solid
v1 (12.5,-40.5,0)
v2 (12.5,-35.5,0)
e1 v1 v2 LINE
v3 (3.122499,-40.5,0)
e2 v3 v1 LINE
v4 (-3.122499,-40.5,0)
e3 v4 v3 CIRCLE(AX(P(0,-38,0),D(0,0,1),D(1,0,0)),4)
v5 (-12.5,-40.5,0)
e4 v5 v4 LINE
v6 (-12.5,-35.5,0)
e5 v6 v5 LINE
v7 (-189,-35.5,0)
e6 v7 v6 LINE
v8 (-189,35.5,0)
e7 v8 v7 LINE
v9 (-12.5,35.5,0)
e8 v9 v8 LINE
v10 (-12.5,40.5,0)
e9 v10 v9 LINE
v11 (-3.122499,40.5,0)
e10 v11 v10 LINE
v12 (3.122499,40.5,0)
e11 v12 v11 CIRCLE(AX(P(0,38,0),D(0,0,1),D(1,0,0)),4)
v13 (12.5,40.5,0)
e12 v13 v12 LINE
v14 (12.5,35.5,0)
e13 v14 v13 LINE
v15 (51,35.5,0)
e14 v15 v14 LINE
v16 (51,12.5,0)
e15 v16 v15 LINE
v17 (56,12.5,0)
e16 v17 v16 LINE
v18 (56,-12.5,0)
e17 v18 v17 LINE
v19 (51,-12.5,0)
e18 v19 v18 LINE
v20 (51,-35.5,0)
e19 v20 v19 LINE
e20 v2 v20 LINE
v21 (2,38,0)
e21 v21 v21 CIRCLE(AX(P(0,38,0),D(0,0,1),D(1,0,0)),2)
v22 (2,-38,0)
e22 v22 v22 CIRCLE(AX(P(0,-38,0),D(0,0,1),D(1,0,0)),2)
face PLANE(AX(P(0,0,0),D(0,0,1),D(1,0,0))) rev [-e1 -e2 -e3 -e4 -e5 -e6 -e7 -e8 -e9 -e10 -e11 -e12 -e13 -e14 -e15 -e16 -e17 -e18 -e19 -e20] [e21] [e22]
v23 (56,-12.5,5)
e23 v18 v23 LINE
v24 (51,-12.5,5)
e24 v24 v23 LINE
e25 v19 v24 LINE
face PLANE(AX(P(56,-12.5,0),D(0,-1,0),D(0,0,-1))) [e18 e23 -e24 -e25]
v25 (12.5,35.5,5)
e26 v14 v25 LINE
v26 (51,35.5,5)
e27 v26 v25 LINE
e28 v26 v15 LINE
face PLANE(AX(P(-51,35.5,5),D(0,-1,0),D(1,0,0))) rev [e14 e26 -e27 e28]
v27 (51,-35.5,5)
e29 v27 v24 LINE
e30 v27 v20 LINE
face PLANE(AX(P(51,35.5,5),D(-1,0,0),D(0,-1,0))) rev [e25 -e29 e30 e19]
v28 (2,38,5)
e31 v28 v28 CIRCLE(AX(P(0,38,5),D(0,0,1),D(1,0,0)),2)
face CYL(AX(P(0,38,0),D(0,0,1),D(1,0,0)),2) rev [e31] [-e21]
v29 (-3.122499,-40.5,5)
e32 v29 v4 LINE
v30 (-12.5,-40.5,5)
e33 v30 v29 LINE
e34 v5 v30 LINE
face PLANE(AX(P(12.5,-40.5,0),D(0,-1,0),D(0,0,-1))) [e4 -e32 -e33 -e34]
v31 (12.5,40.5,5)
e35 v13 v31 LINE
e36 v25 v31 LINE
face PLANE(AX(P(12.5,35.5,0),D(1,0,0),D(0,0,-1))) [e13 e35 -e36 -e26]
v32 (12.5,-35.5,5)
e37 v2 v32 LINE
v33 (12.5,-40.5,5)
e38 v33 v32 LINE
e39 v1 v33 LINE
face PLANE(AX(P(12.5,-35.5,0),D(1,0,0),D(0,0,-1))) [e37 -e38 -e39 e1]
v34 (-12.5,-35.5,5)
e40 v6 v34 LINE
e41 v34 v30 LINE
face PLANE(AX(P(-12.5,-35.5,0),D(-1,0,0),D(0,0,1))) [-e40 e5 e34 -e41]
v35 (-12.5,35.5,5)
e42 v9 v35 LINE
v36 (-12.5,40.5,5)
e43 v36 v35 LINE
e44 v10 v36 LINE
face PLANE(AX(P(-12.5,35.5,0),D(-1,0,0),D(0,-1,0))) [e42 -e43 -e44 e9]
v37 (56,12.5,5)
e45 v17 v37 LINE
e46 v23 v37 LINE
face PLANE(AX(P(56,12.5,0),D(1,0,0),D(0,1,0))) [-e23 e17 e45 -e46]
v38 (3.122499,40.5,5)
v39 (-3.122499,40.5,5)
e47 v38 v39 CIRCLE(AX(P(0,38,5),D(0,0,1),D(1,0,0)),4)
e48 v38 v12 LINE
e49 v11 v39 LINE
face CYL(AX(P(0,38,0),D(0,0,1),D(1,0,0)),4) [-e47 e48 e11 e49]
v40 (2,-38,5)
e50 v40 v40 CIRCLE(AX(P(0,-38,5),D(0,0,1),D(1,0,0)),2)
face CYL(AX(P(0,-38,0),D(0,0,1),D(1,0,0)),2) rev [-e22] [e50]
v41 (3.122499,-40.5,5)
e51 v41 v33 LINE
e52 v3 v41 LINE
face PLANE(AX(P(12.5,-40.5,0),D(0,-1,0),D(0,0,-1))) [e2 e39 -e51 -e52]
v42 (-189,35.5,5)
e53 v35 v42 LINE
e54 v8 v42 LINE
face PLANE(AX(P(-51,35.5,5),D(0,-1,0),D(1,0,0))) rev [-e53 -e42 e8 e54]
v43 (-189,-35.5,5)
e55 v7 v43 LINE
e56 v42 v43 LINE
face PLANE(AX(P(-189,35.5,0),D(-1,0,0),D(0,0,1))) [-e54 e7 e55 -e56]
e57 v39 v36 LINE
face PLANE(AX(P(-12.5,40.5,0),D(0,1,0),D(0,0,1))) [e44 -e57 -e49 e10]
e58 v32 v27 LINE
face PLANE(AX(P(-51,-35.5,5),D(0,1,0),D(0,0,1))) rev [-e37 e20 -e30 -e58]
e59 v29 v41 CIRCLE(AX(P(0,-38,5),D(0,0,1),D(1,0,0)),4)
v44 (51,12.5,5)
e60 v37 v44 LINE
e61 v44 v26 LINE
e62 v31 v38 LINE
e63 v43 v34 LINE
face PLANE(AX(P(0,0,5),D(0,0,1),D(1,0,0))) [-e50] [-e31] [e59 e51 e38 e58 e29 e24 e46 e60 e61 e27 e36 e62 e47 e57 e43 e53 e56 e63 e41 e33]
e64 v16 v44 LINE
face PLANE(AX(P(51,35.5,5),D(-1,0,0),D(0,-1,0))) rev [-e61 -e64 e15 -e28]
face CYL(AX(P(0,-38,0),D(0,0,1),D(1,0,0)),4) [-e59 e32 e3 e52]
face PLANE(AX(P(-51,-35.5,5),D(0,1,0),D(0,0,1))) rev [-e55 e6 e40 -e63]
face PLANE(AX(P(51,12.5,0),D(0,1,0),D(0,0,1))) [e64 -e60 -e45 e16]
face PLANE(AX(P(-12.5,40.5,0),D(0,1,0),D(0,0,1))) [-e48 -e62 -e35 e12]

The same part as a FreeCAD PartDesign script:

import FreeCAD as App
import Part
import Sketcher
from FreeCAD import Vector
Q = App.Units.Quantity


def add_polygon(sketch, points):
    """Adds a closed chain of lines whose ends are joined by coincident constraints."""
    first, n = sketch.GeometryCount, len(points)
    for a, b in zip(points, points[1:] + points[:1]):
        sketch.addGeometry(Part.LineSegment(App.Vector(*a, 0), App.Vector(*b, 0)), False)
    for i in range(n):
        sketch.addConstraint(Sketcher.Constraint("Coincident", first + i, 2, first + (i + 1) % n, 1))

doc = App.newDocument("Part")
params = doc.addObject("Spreadsheet::Sheet", "Params")
for row, (alias, value) in enumerate([
    ("sketch1_width", "102 mm"),
    ("sketch1_height", "71 mm"),
    ("pad1_length", "5 mm"),
    ("sketch2_width", "25 mm"),
    ("sketch2_width2", "5 mm"),
    ("pad2_length", "5 mm"),
    ("sketch3_diameter", "4 mm"),
    ("pocket1_length", "5 mm"),
    ("sketch4_diameter", "8 mm"),
    ("sketch4_diameter2", "4 mm"),
    ("pad3_length", "5 mm"),
    ("sketch5_width", "138 mm"),
    ("sketch5_height", "71 mm"),
    ("pad4_length", "5 mm"),
], start=1):
    params.set(f"A{row}", alias)
    params.set(f"B{row}", "=" + value)
    params.setAlias(f"B{row}", alias)

body = doc.addObject("PartDesign::Body", "Body")

# Sketch on XY plane
sketch1 = body.newObject("Sketcher::SketchObject", "Sketch")
sketch1.AttachmentSupport = (doc.getObject("XY_Plane"), [""])
sketch1.MapMode = "FlatFace"
add_polygon(sketch1, [(-51, 36), (-51, -36), (51, -36), (51, 36)])  # lines 0-3
sketch1.addConstraint([
    Sketcher.Constraint("Vertical", 0),
    Sketcher.Constraint("Horizontal", 1),
    Sketcher.Constraint("Vertical", 2),
    Sketcher.Constraint("Horizontal", 3),
    Sketcher.Constraint("Symmetric", 0, 2, 2, 2, -1, 1),
    Sketcher.Constraint("DistanceX", 1, 1, 1, 2, Q("102 mm")),
    Sketcher.Constraint("DistanceY", 0, 2, 0, 1, Q("71 mm")),
])
sketch1.setExpression("Constraints[9]", "Params.sketch1_width")
sketch1.setExpression("Constraints[10]", "Params.sketch1_height")
pad1 = body.newObject("PartDesign::Pad", "Pad")
pad1.Profile = sketch1
pad1.setExpression("Length", "Params.pad1_length")

# Sketch on XY plane
sketch2 = body.newObject("Sketcher::SketchObject", "Sketch001")
sketch2.AttachmentSupport = (doc.getObject("XY_Plane"), [""])
sketch2.MapMode = "FlatFace"
sketch2.AttachmentOffset = App.Placement(Vector(0, 0, 5), App.Rotation())
add_polygon(sketch2, [(-12, 40), (-12, 36), (12, 36), (12, 40)])  # lines 0-3
add_polygon(sketch2, [(51, 12), (51, -12), (56, -12), (56, 12)])  # lines 4-7
add_polygon(sketch2, [(-12, -36), (-12, -40), (12, -40), (12, -36)])  # lines 8-11
sketch2.addConstraint([
    Sketcher.Constraint("Vertical", 0),
    Sketcher.Constraint("Horizontal", 1),
    Sketcher.Constraint("Vertical", 2),
    Sketcher.Constraint("Horizontal", 3),
    Sketcher.Constraint("Vertical", 4),
    Sketcher.Constraint("Horizontal", 5),
    Sketcher.Constraint("Vertical", 6),
    Sketcher.Constraint("Horizontal", 7),
    Sketcher.Constraint("Vertical", 8),
    Sketcher.Constraint("Horizontal", 9),
    Sketcher.Constraint("Vertical", 10),
    Sketcher.Constraint("Horizontal", 11),
    Sketcher.Constraint("Symmetric", 2, 2, 8, 2, -1, 1),
    Sketcher.Constraint("Symmetric", 0, 2, 10, 2, -1, 1),
    Sketcher.Constraint("Vertical", 3, 2, 8, 2),
    Sketcher.Constraint("Equal", 7, 0),
    Sketcher.Constraint("Equal", 11, 4),
    Sketcher.Constraint("DistanceX", 1, 1, 1, 2, Q("25 mm")),
    Sketcher.Constraint("DistanceX", 5, 1, 5, 2, Q("5 mm")),
    Sketcher.Constraint("DistanceX", -1, 1, 4, 2, Q("51 mm")),
    Sketcher.Constraint("DistanceY", 4, 2, 1, 2, Q("48 mm")),
    Sketcher.Constraint("DistanceY", 8, 2, 4, 2, Q("28 mm")),
])
sketch2.setExpression("Constraints[29]", "Params.sketch2_width")
sketch2.setExpression("Constraints[30]", "Params.sketch2_width2")
pad2 = body.newObject("PartDesign::Pad", "Pad001")
pad2.Profile = sketch2
pad2.setExpression("Length", "Params.pad2_length")
pad2.Reversed = True

# Sketch on XY plane
sketch3 = body.newObject("Sketcher::SketchObject", "Sketch002")
sketch3.AttachmentSupport = (doc.getObject("XY_Plane"), [""])
sketch3.MapMode = "FlatFace"
sketch3.AttachmentOffset = App.Placement(Vector(0, 0, 5), App.Rotation())
sketch3.addGeometry([
    Part.Circle(Vector(0, 38, 0), Vector(0, 0, 1), 2),
    Part.Circle(Vector(0, -38, 0), Vector(0, 0, 1), 2),
], False)
sketch3.addConstraint([
    Sketcher.Constraint("Equal", 0, 1),
    Sketcher.Constraint("Symmetric", 0, 3, 1, 3, -1, 1),
    Sketcher.Constraint("PointOnObject", 0, 3, -2),
    Sketcher.Constraint("Diameter", 0, Q("4 mm")),
    Sketcher.Constraint("DistanceY", -1, 1, 0, 3, Q("38 mm")),
])
sketch3.setExpression("Constraints[3]", "Params.sketch3_diameter")
pocket1 = body.newObject("PartDesign::Pocket", "Pocket")
pocket1.Profile = sketch3
pocket1.setExpression("Length", "Params.pocket1_length")

# Sketch on XY plane
sketch4 = body.newObject("Sketcher::SketchObject", "Sketch003")
sketch4.AttachmentSupport = (doc.getObject("XY_Plane"), [""])
sketch4.MapMode = "FlatFace"
sketch4.AttachmentOffset = App.Placement(Vector(0, 0, 5), App.Rotation())
sketch4.addGeometry([
    Part.Circle(Vector(0, 38, 0), Vector(0, 0, 1), 4),
    Part.Circle(Vector(0, 38, 0), Vector(0, 0, 1), 2),
    Part.Circle(Vector(0, -38, 0), Vector(0, 0, 1), 4),
    Part.Circle(Vector(0, -38, 0), Vector(0, 0, 1), 2),
], False)
sketch4.addConstraint([
    Sketcher.Constraint("Coincident", 1, 3, 0, 3),
    Sketcher.Constraint("Coincident", 3, 3, 2, 3),
    Sketcher.Constraint("Equal", 0, 2),
    Sketcher.Constraint("Equal", 1, 3),
    Sketcher.Constraint("Symmetric", 0, 3, 2, 3, -1, 1),
    Sketcher.Constraint("PointOnObject", 0, 3, -2),
    Sketcher.Constraint("Diameter", 0, Q("8 mm")),
    Sketcher.Constraint("Diameter", 1, Q("4 mm")),
    Sketcher.Constraint("DistanceY", -1, 1, 0, 3, Q("38 mm")),
])
sketch4.setExpression("Constraints[6]", "Params.sketch4_diameter")
sketch4.setExpression("Constraints[7]", "Params.sketch4_diameter2")
pad3 = body.newObject("PartDesign::Pad", "Pad002")
pad3.Profile = sketch4
pad3.setExpression("Length", "Params.pad3_length")
pad3.Reversed = True

# Sketch on XY plane
sketch5 = body.newObject("Sketcher::SketchObject", "Sketch004")
sketch5.AttachmentSupport = (doc.getObject("XY_Plane"), [""])
sketch5.MapMode = "FlatFace"
sketch5.AttachmentOffset = App.Placement(Vector(0, 0, 5), App.Rotation())
add_polygon(sketch5, [(-189, 36), (-189, -36), (-51, -36), (-51, 36)])  # lines 0-3
sketch5.addConstraint([
    Sketcher.Constraint("Vertical", 0),
    Sketcher.Constraint("Horizontal", 1),
    Sketcher.Constraint("Vertical", 2),
    Sketcher.Constraint("Horizontal", 3),
    Sketcher.Constraint("DistanceX", 1, 1, 1, 2, Q("138 mm")),
    Sketcher.Constraint("DistanceY", 0, 2, 0, 1, Q("71 mm")),
    Sketcher.Constraint("DistanceX", 0, 2, -1, 1, Q("189 mm")),
    Sketcher.Constraint("DistanceY", 0, 2, -1, 1, Q("35.5 mm")),
])
sketch5.setExpression("Constraints[8]", "Params.sketch5_width")
sketch5.setExpression("Constraints[9]", "Params.sketch5_height")
pad4 = body.newObject("PartDesign::Pad", "Pad003")
pad4.Profile = sketch5
pad4.setExpression("Length", "Params.pad4_length")
pad4.Reversed = True

doc.recompute()
